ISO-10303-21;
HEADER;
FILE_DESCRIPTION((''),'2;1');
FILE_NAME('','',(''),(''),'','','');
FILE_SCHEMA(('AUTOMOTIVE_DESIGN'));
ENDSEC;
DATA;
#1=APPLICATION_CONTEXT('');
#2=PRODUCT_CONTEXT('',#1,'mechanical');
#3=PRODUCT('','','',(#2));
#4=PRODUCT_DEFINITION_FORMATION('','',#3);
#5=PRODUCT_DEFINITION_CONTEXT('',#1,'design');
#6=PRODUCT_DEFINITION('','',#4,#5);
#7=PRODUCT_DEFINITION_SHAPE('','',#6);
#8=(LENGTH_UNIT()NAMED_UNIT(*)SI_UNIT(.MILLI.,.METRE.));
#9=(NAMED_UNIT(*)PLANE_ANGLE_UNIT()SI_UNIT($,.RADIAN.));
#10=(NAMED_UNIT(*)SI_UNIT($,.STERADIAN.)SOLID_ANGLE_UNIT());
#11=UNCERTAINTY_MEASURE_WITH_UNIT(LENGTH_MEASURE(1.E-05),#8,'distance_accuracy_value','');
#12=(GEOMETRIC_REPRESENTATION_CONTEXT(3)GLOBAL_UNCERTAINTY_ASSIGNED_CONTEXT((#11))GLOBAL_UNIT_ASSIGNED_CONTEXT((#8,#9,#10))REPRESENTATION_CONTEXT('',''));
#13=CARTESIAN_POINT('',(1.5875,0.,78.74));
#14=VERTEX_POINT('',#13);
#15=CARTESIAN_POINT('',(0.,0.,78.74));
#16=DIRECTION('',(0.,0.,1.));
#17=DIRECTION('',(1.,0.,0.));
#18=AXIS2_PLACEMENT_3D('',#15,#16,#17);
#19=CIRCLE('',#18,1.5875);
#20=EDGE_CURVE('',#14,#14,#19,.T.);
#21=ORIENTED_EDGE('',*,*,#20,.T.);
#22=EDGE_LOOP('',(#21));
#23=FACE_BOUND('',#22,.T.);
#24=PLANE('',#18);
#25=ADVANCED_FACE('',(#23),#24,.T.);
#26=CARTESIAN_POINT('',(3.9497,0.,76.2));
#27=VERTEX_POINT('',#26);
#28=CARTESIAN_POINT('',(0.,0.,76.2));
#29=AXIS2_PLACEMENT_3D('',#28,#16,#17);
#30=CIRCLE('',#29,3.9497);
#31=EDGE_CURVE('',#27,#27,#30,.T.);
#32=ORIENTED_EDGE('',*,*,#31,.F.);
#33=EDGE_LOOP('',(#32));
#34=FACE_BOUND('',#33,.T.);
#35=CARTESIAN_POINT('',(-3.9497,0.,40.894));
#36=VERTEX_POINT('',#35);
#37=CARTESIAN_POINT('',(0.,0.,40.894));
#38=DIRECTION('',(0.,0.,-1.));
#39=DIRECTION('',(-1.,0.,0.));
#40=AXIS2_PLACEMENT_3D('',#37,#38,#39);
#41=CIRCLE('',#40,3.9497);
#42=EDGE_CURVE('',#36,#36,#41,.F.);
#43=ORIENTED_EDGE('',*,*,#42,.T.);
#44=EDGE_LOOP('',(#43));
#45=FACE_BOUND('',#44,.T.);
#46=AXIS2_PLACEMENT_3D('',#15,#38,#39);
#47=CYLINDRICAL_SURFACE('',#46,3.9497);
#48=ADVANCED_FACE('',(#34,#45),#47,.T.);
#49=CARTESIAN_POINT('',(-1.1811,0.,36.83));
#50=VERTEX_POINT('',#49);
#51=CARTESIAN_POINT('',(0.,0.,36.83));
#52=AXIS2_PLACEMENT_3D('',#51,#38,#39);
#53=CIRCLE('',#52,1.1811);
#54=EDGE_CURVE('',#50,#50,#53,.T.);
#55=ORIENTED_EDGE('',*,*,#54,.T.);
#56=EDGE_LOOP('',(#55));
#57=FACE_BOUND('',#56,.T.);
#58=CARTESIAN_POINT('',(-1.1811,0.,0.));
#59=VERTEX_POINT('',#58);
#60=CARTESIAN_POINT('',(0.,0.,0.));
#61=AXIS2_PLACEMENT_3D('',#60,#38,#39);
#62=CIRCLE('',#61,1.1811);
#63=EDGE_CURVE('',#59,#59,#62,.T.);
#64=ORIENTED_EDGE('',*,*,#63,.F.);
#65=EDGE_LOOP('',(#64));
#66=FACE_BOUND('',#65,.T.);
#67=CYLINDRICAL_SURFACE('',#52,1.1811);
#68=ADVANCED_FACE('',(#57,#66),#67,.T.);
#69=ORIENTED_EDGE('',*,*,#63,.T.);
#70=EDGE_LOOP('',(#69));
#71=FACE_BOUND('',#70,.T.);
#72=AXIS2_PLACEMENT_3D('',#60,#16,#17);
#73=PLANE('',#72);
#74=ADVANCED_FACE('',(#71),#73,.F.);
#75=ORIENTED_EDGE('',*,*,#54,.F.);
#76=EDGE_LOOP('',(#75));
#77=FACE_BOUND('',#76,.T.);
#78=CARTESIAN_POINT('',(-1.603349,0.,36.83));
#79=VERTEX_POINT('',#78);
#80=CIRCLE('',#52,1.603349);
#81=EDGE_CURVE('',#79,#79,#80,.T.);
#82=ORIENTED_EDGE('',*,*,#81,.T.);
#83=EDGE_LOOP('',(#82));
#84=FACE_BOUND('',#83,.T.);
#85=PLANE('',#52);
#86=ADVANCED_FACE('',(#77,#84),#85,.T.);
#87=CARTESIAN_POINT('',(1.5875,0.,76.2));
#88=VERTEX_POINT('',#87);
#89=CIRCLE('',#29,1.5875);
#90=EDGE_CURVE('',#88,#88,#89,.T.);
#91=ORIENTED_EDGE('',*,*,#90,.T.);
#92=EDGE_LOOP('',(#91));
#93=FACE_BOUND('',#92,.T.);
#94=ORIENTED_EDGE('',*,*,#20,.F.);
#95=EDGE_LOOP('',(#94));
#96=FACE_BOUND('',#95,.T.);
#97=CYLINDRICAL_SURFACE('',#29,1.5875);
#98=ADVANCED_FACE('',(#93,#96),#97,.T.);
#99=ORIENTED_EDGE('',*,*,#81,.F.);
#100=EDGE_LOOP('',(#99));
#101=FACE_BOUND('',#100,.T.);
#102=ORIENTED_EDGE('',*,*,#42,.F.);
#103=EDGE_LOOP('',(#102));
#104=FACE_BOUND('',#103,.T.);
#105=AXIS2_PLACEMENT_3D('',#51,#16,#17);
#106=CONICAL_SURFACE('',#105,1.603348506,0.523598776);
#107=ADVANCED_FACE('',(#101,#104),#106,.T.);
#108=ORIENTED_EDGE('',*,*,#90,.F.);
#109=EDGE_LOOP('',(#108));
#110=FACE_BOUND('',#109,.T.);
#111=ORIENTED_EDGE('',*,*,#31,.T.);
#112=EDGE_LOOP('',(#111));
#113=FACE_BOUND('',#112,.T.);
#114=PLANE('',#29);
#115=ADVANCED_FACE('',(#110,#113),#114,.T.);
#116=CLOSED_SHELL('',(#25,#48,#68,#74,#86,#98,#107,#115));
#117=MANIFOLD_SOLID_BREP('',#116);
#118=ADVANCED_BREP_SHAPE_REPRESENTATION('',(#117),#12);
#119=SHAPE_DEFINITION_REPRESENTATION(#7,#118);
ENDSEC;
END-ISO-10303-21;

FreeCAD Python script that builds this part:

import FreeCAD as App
import Part
import Sketcher
Q = App.Units.Quantity


def edges_at(feature, points):
    """Names of the edges that pass closest to the given points."""
    edges = feature.Shape.Edges
    near = lambda p: min(range(len(edges)), key=lambda i: edges[i].distToShape(Part.Vertex(*p))[0])
    return sorted({f"Edge{near(p) + 1}" for p in points})

doc = App.newDocument("Part")
params = doc.addObject("Spreadsheet::Sheet", "Params")
for row, (alias, value) in enumerate([
    ("sketch1_diameter", "0.311 in"),
    ("pad1_length", "3.1 in"),
    ("sketch2_diameter", "0.311 in"),
    ("sketch2_diameter2", "0.125 in"),
    ("pocket1_length", "0.1 in"),
    ("sketch3_diameter", "0.311 in"),
    ("sketch3_diameter2", "0.093 in"),
    ("pocket2_length", "1.45 in"),
    ("chamfer_size", "0.16 in"),
    ("chamfer_size2", "2.346351 mm"),
], start=1):
    params.set(f"A{row}", alias)
    params.set(f"B{row}", "=" + value)
    params.setAlias(f"B{row}", alias)

body = doc.addObject("PartDesign::Body", "Body")

# Sketch on XY plane
sketch1 = body.newObject("Sketcher::SketchObject", "Sketch")
sketch1.AttachmentSupport = (doc.getObject("XY_Plane"), [""])
sketch1.MapMode = "FlatFace"
sketch1.addGeometry(Part.Circle(App.Vector(0, 0, 0), App.Vector(0, 0, 1), 3.9497), False)
sketch1.addConstraint([
    Sketcher.Constraint("Coincident", 0, 3, -1, 1),
    Sketcher.Constraint("Diameter", 0, Q("0.311 in")),
])
sketch1.setExpression("Constraints[1]", "Params.sketch1_diameter")
pad1 = body.newObject("PartDesign::Pad", "Pad")
pad1.Profile = sketch1
pad1.setExpression("Length", "Params.pad1_length")

# Sketch on XY plane
sketch2 = body.newObject("Sketcher::SketchObject", "Sketch001")
sketch2.AttachmentSupport = (doc.getObject("XY_Plane"), [""])
sketch2.MapMode = "FlatFace"
sketch2.AttachmentOffset = App.Placement(App.Vector(0, 0, 3 * 25.4), App.Rotation())
sketch2.addGeometry([
    Part.Circle(App.Vector(0, 0, 0), App.Vector(0, 0, 1), 3.9497),
    Part.Circle(App.Vector(0, 0, 0), App.Vector(0, 0, 1), 1.5875),
], False)
sketch2.addConstraint([
    Sketcher.Constraint("Coincident", 0, 3, -1, 1),
    Sketcher.Constraint("Coincident", 1, 3, -1, 1),
    Sketcher.Constraint("Diameter", 0, Q("0.311 in")),
    Sketcher.Constraint("Diameter", 1, Q("0.125 in")),
])
sketch2.setExpression("Constraints[2]", "Params.sketch2_diameter")
sketch2.setExpression("Constraints[3]", "Params.sketch2_diameter2")
pocket1 = body.newObject("PartDesign::Pocket", "Pocket")
pocket1.Profile = sketch2
pocket1.setExpression("Length", "Params.pocket1_length")
pocket1.Reversed = True

# Sketch on XY plane
sketch3 = body.newObject("Sketcher::SketchObject", "Sketch002")
sketch3.AttachmentSupport = (doc.getObject("XY_Plane"), [""])
sketch3.MapMode = "FlatFace"
sketch3.addGeometry([
    Part.Circle(App.Vector(0, 0, 0), App.Vector(0, 0, 1), 3.9497),
    Part.Circle(App.Vector(0, 0, 0), App.Vector(0, 0, 1), 1.1811),
], False)
sketch3.addConstraint([
    Sketcher.Constraint("Coincident", 0, 3, -1, 1),
    Sketcher.Constraint("Coincident", 1, 3, -1, 1),
    Sketcher.Constraint("Diameter", 0, Q("0.311 in")),
    Sketcher.Constraint("Diameter", 1, Q("0.093 in")),
])
sketch3.setExpression("Constraints[2]", "Params.sketch3_diameter")
sketch3.setExpression("Constraints[3]", "Params.sketch3_diameter2")
pocket2 = body.newObject("PartDesign::Pocket", "Pocket001")
pocket2.Profile = sketch3
pocket2.setExpression("Length", "Params.pocket2_length")
pocket2.Reversed = True
doc.recompute()

chamfer = body.newObject("PartDesign::Chamfer", "Chamfer")
chamfer.Base = (pocket2, edges_at(pocket2, [(-3.95, 0, 36.83)]))
chamfer.ChamferType = "Two distances"
chamfer.setExpression("Size", "Params.chamfer_size")
chamfer.setExpression("Size2", "Params.chamfer_size2")

doc.recompute()
